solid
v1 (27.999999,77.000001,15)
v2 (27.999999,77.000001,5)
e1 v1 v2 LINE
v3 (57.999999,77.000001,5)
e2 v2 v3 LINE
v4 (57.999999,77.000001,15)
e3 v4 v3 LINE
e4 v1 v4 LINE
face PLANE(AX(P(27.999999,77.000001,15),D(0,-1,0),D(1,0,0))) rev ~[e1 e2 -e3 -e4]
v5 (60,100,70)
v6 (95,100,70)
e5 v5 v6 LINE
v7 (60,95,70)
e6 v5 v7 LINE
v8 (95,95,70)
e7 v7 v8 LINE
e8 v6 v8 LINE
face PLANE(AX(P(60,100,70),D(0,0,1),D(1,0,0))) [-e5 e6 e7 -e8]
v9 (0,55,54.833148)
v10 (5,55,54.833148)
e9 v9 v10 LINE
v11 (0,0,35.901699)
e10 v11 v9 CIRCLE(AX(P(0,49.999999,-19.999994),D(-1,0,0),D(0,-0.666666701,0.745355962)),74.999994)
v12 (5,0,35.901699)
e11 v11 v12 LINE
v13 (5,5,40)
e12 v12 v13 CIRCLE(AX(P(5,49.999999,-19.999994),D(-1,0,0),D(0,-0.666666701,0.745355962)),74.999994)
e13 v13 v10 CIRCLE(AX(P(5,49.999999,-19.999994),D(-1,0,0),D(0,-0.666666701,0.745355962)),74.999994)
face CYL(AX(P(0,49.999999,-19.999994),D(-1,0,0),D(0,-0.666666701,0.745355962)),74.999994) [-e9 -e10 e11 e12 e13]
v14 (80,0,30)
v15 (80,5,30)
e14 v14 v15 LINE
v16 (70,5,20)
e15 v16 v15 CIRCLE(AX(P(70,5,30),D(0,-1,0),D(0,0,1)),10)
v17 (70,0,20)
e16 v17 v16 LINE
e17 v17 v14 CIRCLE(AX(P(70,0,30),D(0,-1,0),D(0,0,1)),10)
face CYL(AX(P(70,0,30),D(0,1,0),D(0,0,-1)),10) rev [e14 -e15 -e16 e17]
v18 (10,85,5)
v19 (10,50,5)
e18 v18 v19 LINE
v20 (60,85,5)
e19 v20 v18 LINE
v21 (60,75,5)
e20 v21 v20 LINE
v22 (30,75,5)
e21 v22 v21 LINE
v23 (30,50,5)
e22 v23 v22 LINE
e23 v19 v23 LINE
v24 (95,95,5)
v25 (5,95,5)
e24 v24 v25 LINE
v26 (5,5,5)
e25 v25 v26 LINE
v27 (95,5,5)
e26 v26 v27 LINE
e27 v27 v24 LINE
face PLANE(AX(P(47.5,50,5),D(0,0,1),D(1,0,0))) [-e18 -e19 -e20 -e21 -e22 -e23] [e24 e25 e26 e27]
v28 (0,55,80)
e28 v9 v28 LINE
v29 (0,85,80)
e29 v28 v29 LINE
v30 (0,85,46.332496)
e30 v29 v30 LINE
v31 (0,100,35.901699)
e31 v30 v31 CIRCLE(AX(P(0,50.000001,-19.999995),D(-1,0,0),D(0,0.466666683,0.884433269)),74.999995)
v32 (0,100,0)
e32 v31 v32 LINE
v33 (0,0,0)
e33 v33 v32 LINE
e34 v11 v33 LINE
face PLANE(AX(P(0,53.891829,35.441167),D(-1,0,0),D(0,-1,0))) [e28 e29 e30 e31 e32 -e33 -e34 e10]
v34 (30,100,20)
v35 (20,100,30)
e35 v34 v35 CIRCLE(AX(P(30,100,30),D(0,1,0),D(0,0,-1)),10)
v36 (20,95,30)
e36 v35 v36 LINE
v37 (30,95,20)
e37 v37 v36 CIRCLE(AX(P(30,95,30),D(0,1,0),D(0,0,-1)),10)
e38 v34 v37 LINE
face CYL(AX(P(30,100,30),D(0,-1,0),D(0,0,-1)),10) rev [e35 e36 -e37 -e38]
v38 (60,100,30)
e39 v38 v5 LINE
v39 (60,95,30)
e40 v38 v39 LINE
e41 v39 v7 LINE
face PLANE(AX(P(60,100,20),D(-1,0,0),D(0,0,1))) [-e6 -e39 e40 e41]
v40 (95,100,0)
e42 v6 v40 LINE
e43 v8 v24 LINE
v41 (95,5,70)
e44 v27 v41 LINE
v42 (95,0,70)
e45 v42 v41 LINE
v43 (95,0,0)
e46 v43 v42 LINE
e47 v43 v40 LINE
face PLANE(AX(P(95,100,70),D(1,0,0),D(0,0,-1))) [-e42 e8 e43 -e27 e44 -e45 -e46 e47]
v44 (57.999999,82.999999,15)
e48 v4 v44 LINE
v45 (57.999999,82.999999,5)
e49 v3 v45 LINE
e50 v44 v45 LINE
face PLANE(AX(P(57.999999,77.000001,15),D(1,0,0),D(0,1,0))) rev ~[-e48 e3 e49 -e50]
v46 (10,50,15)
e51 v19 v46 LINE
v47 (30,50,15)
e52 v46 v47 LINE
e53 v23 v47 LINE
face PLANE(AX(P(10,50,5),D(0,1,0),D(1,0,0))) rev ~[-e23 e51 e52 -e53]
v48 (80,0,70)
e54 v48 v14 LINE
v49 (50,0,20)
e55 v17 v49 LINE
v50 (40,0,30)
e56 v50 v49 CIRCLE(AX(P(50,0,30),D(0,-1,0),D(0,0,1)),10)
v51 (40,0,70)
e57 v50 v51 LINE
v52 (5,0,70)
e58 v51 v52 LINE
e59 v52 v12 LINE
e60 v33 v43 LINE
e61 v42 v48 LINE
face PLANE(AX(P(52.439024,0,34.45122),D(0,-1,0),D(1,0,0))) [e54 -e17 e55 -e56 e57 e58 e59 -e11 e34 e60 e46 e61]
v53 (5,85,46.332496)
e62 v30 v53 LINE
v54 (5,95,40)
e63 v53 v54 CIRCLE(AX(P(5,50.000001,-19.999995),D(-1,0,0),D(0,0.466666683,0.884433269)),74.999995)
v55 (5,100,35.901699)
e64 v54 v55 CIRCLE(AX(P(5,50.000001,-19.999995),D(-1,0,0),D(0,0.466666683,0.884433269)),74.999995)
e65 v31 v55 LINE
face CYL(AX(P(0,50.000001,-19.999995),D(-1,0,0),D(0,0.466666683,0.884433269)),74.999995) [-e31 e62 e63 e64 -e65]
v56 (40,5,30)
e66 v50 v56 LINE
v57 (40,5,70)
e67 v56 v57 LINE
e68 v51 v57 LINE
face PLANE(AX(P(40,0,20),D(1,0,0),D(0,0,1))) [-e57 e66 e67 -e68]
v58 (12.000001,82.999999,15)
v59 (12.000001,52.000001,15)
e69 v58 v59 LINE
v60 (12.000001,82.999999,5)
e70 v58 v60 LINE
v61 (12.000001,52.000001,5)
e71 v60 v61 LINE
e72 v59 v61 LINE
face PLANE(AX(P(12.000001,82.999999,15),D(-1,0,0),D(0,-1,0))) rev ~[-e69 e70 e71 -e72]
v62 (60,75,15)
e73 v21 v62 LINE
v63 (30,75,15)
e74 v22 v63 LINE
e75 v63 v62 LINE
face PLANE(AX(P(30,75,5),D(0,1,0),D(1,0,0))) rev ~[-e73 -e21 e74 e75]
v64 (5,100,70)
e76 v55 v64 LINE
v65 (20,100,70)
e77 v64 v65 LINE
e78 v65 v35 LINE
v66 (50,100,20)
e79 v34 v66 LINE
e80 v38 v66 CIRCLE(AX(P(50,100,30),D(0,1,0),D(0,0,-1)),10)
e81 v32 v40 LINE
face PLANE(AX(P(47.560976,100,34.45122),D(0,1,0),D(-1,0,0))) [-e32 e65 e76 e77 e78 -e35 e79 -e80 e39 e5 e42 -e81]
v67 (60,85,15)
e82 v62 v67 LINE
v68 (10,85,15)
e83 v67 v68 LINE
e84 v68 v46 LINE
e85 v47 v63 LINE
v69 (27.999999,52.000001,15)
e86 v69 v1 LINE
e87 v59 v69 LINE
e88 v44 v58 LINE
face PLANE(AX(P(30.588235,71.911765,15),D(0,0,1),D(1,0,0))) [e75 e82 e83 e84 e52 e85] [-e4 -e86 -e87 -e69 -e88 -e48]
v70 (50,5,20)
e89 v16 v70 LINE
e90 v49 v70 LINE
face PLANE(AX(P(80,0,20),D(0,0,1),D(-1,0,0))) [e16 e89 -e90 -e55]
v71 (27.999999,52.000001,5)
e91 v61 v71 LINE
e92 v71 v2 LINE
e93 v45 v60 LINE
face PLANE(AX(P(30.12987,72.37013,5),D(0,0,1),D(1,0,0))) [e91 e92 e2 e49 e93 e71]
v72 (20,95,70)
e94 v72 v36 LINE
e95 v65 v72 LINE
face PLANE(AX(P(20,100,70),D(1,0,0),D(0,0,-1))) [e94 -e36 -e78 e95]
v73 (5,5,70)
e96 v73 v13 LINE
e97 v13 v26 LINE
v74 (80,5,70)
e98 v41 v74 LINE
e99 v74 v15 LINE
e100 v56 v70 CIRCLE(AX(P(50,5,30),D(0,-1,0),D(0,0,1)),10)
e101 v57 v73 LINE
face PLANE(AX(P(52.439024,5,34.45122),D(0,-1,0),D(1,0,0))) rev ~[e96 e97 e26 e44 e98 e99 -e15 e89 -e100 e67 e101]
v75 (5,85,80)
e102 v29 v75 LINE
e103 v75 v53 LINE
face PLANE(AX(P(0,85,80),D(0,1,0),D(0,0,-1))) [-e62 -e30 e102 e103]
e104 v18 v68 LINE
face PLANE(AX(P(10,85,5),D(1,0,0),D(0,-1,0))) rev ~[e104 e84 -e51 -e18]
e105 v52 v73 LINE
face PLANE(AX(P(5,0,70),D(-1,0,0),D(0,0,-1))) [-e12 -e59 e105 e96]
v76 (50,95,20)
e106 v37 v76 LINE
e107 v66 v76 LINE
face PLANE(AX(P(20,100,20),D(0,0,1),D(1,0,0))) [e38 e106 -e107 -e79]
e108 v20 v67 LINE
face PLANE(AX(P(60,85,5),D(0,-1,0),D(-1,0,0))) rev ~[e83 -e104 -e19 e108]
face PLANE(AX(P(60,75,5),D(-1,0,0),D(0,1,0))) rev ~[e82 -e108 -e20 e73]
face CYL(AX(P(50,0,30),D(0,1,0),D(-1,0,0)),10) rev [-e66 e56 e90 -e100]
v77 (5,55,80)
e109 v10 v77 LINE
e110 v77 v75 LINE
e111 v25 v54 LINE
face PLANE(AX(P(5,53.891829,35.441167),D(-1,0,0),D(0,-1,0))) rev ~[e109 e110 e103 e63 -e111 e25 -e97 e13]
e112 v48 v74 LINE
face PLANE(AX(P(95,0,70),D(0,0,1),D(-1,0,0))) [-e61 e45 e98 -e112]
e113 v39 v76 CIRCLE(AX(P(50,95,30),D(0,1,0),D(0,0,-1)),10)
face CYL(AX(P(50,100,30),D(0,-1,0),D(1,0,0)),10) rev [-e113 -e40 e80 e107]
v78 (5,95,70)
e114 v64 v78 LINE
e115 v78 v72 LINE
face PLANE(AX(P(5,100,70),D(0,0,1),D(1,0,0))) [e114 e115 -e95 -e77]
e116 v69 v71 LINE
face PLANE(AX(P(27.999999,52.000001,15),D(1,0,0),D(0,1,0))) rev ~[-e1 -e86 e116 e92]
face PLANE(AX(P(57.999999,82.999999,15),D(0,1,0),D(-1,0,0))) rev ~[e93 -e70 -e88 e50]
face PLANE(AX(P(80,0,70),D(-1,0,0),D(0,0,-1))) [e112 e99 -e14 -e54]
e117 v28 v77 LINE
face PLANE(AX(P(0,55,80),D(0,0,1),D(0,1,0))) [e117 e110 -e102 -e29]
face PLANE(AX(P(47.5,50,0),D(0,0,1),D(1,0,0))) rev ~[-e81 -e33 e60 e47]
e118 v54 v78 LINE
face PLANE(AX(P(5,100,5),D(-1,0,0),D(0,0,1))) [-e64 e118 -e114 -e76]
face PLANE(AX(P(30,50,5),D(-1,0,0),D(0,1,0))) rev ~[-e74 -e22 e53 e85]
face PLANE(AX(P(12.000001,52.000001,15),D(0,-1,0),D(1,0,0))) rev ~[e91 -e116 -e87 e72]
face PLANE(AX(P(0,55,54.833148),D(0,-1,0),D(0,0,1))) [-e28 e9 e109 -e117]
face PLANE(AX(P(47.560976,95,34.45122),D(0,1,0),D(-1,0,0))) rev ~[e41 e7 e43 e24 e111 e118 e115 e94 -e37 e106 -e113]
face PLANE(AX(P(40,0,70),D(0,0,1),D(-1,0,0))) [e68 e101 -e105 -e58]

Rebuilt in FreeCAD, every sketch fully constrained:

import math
import FreeCAD as App
import Part
import Sketcher


def edges_at(feature, points):
    """Names of the edges that pass closest to the given points."""
    edges = feature.Shape.Edges
    near = lambda p: min(range(len(edges)), key=lambda i: edges[i].distToShape(Part.Vertex(*p))[0])
    return sorted({f"Edge{near(p) + 1}" for p in points})

doc = App.newDocument("Part")
params = doc.addObject("Spreadsheet::Sheet", "Params")
for row, (alias, value) in enumerate([
    ("sketch1_width", "95 mm"),
    ("sketch1_height", "100 mm"),
    ("pad1_length", "5 mm"),
    ("sketch2_width", "30 mm"),
    ("sketch2_width2", "100 mm"),
    ("pad2_length", "5 mm"),
    ("sketch3_width", "90 mm"),
    ("sketch3_width2", "15 mm"),
    ("sketch3_width3", "40 mm"),
    ("sketch3_height", "65 mm"),
    ("sketch3_height2", "50 mm"),
    ("pad3_length", "5 mm"),
    ("sketch4_width", "90 mm"),
    ("sketch4_width2", "15 mm"),
    ("sketch4_width3", "40 mm"),
    ("sketch4_height", "65 mm"),
    ("sketch4_height2", "50 mm"),
    ("pad4_length", "5 mm"),
    ("fillet_radius", "10 mm"),
    ("sketch5_width", "20 mm"),
    ("sketch5_width2", "30 mm"),
    ("sketch5_height", "35 mm"),
    ("sketch5_height2", "25 mm"),
    ("pad5_length", "10 mm"),
    ("sketch6_width", "45.999998 mm"),
    ("sketch6_width2", "30 mm"),
    ("sketch6_height", "30.999998 mm"),
    ("sketch6_height2", "25 mm"),
    ("pocket1_length", "10 mm"),
], start=1):
    params.set(f"A{row}", alias)
    params.set(f"B{row}", "=" + value)
    params.setAlias(f"B{row}", alias)

body = doc.addObject("PartDesign::Body", "Body")

# Sketch on XY plane
sketch1 = body.newObject("Sketcher::SketchObject", "Sketch")
sketch1.AttachmentSupport = (doc.getObject("XY_Plane"), [""])
sketch1.MapMode = "FlatFace"
sketch1.addGeometry([
    Part.LineSegment(App.Vector(0, 100, 0), App.Vector(0, 0, 0)),
    Part.LineSegment(App.Vector(0, 0, 0), App.Vector(95, 0, 0)),
    Part.LineSegment(App.Vector(95, 0, 0), App.Vector(95, 100, 0)),
    Part.LineSegment(App.Vector(95, 100, 0), App.Vector(0, 100, 0)),
], False)
sketch1.addConstraint([
    Sketcher.Constraint("Coincident", 0, 2, 1, 1),
    Sketcher.Constraint("Coincident", 1, 2, 2, 1),
    Sketcher.Constraint("Coincident", 2, 2, 3, 1),
    Sketcher.Constraint("Coincident", 3, 2, 0, 1),
    Sketcher.Constraint("Vertical", 0),
    Sketcher.Constraint("Horizontal", 1),
    Sketcher.Constraint("Vertical", 2),
    Sketcher.Constraint("Horizontal", 3),
    Sketcher.Constraint("Coincident", 0, 2, -1, 1),
    Sketcher.Constraint("DistanceX", 1, 1, 1, 2, 95.0),
    Sketcher.Constraint("DistanceY", 0, 2, 0, 1, 100.0),
])
sketch1.setExpression("Constraints[9]", "Params.sketch1_width")
sketch1.setExpression("Constraints[10]", "Params.sketch1_height")
pad1 = body.newObject("PartDesign::Pad", "Pad")
pad1.Profile = sketch1
pad1.setExpression("Length", "Params.pad1_length")

# Sketch on YZ plane
sketch2 = body.newObject("Sketcher::SketchObject", "Sketch001")
sketch2.AttachmentSupport = (doc.getObject("YZ_Plane"), [""])
sketch2.MapMode = "FlatFace"
sketch2.addGeometry([
    Part.LineSegment(App.Vector(0, 5, 0), App.Vector(0, 36, 0)),  # 0
    Part.ArcOfCircle(Part.Circle(App.Vector(50, -20, 0), App.Vector(0, 0, 1), 75), math.radians(86), math.radians(132)),  # 1
    Part.LineSegment(App.Vector(55, 55, 0), App.Vector(55, 80, 0)),  # 2
    Part.LineSegment(App.Vector(55, 80, 0), App.Vector(85, 80, 0)),  # 3
    Part.LineSegment(App.Vector(85, 80, 0), App.Vector(85, 46, 0)),  # 4
    Part.ArcOfCircle(Part.Circle(App.Vector(50, -20, 0), App.Vector(0, 0, 1), 75), math.radians(48.19), math.radians(62.18)),  # 5
    Part.LineSegment(App.Vector(100, 36, 0), App.Vector(100, 5, 0)),  # 6
    Part.LineSegment(App.Vector(100, 5, 0), App.Vector(0, 5, 0)),  # 7
], False)
sketch2.addConstraint([
    Sketcher.Constraint("Coincident", 0, 2, 1, 2),
    Sketcher.Constraint("Coincident", 1, 1, 2, 1),
    Sketcher.Constraint("Coincident", 2, 2, 3, 1),
    Sketcher.Constraint("Coincident", 3, 2, 4, 1),
    Sketcher.Constraint("Coincident", 4, 2, 5, 2),
    Sketcher.Constraint("Coincident", 5, 1, 6, 1),
    Sketcher.Constraint("Coincident", 6, 2, 7, 1),
    Sketcher.Constraint("Coincident", 7, 2, 0, 1),
    Sketcher.Constraint("Vertical", 0),
    Sketcher.Constraint("Vertical", 2),
    Sketcher.Constraint("Horizontal", 3),
    Sketcher.Constraint("Vertical", 4),
    Sketcher.Constraint("Vertical", 6),
    Sketcher.Constraint("Horizontal", 7),
    Sketcher.Constraint("Coincident", 5, 3, 1, 3),
    Sketcher.Constraint("Equal", 1, 5),
    Sketcher.Constraint("PointOnObject", 0, 2, -2),
    Sketcher.Constraint("Horizontal", 0, 2, 5, 1),
    Sketcher.Constraint("DistanceX", 3, 1, 3, 2, 30.0),
    Sketcher.Constraint("DistanceX", 7, 2, 7, 1, 100.0),
    Sketcher.Constraint("DistanceX", -1, 1, 1, 1, 55.0),
    Sketcher.Constraint("DistanceY", -1, 1, 2, 2, 80.0),
    Sketcher.Constraint("DistanceY", -1, 1, 6, 2, 5.0),
    Sketcher.Constraint("DistanceY", 0, 1, 0, 2, 30.901699),
    Sketcher.Constraint("Radius", 1, 74.999994),
])
sketch2.setExpression("Constraints[18]", "Params.sketch2_width")
sketch2.setExpression("Constraints[19]", "Params.sketch2_width2")
pad2 = body.newObject("PartDesign::Pad", "Pad001")
pad2.Profile = sketch2
pad2.setExpression("Length", "Params.pad2_length")

# Sketch on XZ plane
sketch3 = body.newObject("Sketcher::SketchObject", "Sketch002")
sketch3.AttachmentSupport = (doc.getObject("XZ_Plane"), [""])
sketch3.MapMode = "FlatFace"
sketch3.addGeometry([
    Part.LineSegment(App.Vector(5, 70, 0), App.Vector(5, 5, 0)),  # 0
    Part.LineSegment(App.Vector(5, 5, 0), App.Vector(95, 5, 0)),  # 1
    Part.LineSegment(App.Vector(95, 5, 0), App.Vector(95, 70, 0)),  # 2
    Part.LineSegment(App.Vector(95, 70, 0), App.Vector(80, 70, 0)),  # 3
    Part.LineSegment(App.Vector(80, 70, 0), App.Vector(80, 20, 0)),  # 4
    Part.LineSegment(App.Vector(80, 20, 0), App.Vector(40, 20, 0)),  # 5
    Part.LineSegment(App.Vector(40, 20, 0), App.Vector(40, 70, 0)),  # 6
    Part.LineSegment(App.Vector(40, 70, 0), App.Vector(5, 70, 0)),  # 7
], False)
sketch3.addConstraint([
    Sketcher.Constraint("Coincident", 0, 2, 1, 1),
    Sketcher.Constraint("Coincident", 1, 2, 2, 1),
    Sketcher.Constraint("Coincident", 2, 2, 3, 1),
    Sketcher.Constraint("Coincident", 3, 2, 4, 1),
    Sketcher.Constraint("Coincident", 4, 2, 5, 1),
    Sketcher.Constraint("Coincident", 5, 2, 6, 1),
    Sketcher.Constraint("Coincident", 6, 2, 7, 1),
    Sketcher.Constraint("Coincident", 7, 2, 0, 1),
    Sketcher.Constraint("Vertical", 0),
    Sketcher.Constraint("Horizontal", 1),
    Sketcher.Constraint("Vertical", 2),
    Sketcher.Constraint("Horizontal", 3),
    Sketcher.Constraint("Vertical", 4),
    Sketcher.Constraint("Horizontal", 5),
    Sketcher.Constraint("Vertical", 6),
    Sketcher.Constraint("Horizontal", 7),
    Sketcher.Constraint("Horizontal", 3, 2, 6, 2),
    Sketcher.Constraint("DistanceX", 1, 1, 1, 2, 90.0),
    Sketcher.Constraint("DistanceX", 3, 2, 3, 1, 15.0),
    Sketcher.Constraint("DistanceX", 5, 2, 5, 1, 40.0),
    Sketcher.Constraint("DistanceY", 0, 2, 0, 1, 65.0),
    Sketcher.Constraint("DistanceY", 4, 2, 4, 1, 50.0),
    Sketcher.Constraint("DistanceX", -1, 1, 0, 2, 5.0),
    Sketcher.Constraint("DistanceY", -1, 1, 0, 2, 5.0),
])
sketch3.setExpression("Constraints[17]", "Params.sketch3_width")
sketch3.setExpression("Constraints[18]", "Params.sketch3_width2")
sketch3.setExpression("Constraints[19]", "Params.sketch3_width3")
sketch3.setExpression("Constraints[20]", "Params.sketch3_height")
sketch3.setExpression("Constraints[21]", "Params.sketch3_height2")
pad3 = body.newObject("PartDesign::Pad", "Pad002")
pad3.Profile = sketch3
pad3.setExpression("Length", "Params.pad3_length")
pad3.Reversed = True

# Sketch on XZ plane
sketch4 = body.newObject("Sketcher::SketchObject", "Sketch003")
sketch4.AttachmentSupport = (doc.getObject("XZ_Plane"), [""])
sketch4.MapMode = "FlatFace"
sketch4.AttachmentOffset = App.Placement(App.Vector(0, 0, -100), App.Rotation())
sketch4.addGeometry([
    Part.LineSegment(App.Vector(95, 5, 0), App.Vector(5, 5, 0)),  # 0
    Part.LineSegment(App.Vector(5, 5, 0), App.Vector(5, 70, 0)),  # 1
    Part.LineSegment(App.Vector(5, 70, 0), App.Vector(20, 70, 0)),  # 2
    Part.LineSegment(App.Vector(20, 70, 0), App.Vector(20, 20, 0)),  # 3
    Part.LineSegment(App.Vector(20, 20, 0), App.Vector(60, 20, 0)),  # 4
    Part.LineSegment(App.Vector(60, 20, 0), App.Vector(60, 70, 0)),  # 5
    Part.LineSegment(App.Vector(60, 70, 0), App.Vector(95, 70, 0)),  # 6
    Part.LineSegment(App.Vector(95, 70, 0), App.Vector(95, 5, 0)),  # 7
], False)
sketch4.addConstraint([
    Sketcher.Constraint("Coincident", 0, 2, 1, 1),
    Sketcher.Constraint("Coincident", 1, 2, 2, 1),
    Sketcher.Constraint("Coincident", 2, 2, 3, 1),
    Sketcher.Constraint("Coincident", 3, 2, 4, 1),
    Sketcher.Constraint("Coincident", 4, 2, 5, 1),
    Sketcher.Constraint("Coincident", 5, 2, 6, 1),
    Sketcher.Constraint("Coincident", 6, 2, 7, 1),
    Sketcher.Constraint("Coincident", 7, 2, 0, 1),
    Sketcher.Constraint("Horizontal", 0),
    Sketcher.Constraint("Vertical", 1),
    Sketcher.Constraint("Horizontal", 2),
    Sketcher.Constraint("Vertical", 3),
    Sketcher.Constraint("Horizontal", 4),
    Sketcher.Constraint("Vertical", 5),
    Sketcher.Constraint("Horizontal", 6),
    Sketcher.Constraint("Vertical", 7),
    Sketcher.Constraint("Horizontal", 2, 2, 5, 2),
    Sketcher.Constraint("DistanceX", 0, 2, 0, 1, 90.0),
    Sketcher.Constraint("DistanceX", 2, 1, 2, 2, 15.0),
    Sketcher.Constraint("DistanceX", 4, 1, 4, 2, 40.0),
    Sketcher.Constraint("DistanceY", 1, 1, 1, 2, 65.0),
    Sketcher.Constraint("DistanceY", 3, 2, 3, 1, 50.0),
    Sketcher.Constraint("DistanceX", -1, 1, 0, 2, 5.0),
    Sketcher.Constraint("DistanceY", -1, 1, 0, 2, 5.0),
])
sketch4.setExpression("Constraints[17]", "Params.sketch4_width")
sketch4.setExpression("Constraints[18]", "Params.sketch4_width2")
sketch4.setExpression("Constraints[19]", "Params.sketch4_width3")
sketch4.setExpression("Constraints[20]", "Params.sketch4_height")
sketch4.setExpression("Constraints[21]", "Params.sketch4_height2")
pad4 = body.newObject("PartDesign::Pad", "Pad003")
pad4.Profile = sketch4
pad4.setExpression("Length", "Params.pad4_length")
doc.recompute()

fillet = body.newObject("PartDesign::Fillet", "Fillet")
fillet.Base = (pad4, edges_at(pad4, [
    (20, 97.5, 20),
    (40, 2.5, 20),
    (60, 97.5, 20),
    (80, 2.5, 20),
]))
fillet.setExpression("Radius", "Params.fillet_radius")

# Sketch on XY plane
sketch5 = body.newObject("Sketcher::SketchObject", "Sketch004")
sketch5.AttachmentSupport = (doc.getObject("XY_Plane"), [""])
sketch5.MapMode = "FlatFace"
sketch5.AttachmentOffset = App.Placement(App.Vector(0, 0, 5), App.Rotation())
sketch5.addGeometry([
    Part.LineSegment(App.Vector(10, 85, 0), App.Vector(10, 50, 0)),  # 0
    Part.LineSegment(App.Vector(10, 50, 0), App.Vector(30, 50, 0)),  # 1
    Part.LineSegment(App.Vector(30, 50, 0), App.Vector(30, 75, 0)),  # 2
    Part.LineSegment(App.Vector(30, 75, 0), App.Vector(60, 75, 0)),  # 3
    Part.LineSegment(App.Vector(60, 75, 0), App.Vector(60, 85, 0)),  # 4
    Part.LineSegment(App.Vector(60, 85, 0), App.Vector(10, 85, 0)),  # 5
], False)
sketch5.addConstraint([
    Sketcher.Constraint("Coincident", 0, 2, 1, 1),
    Sketcher.Constraint("Coincident", 1, 2, 2, 1),
    Sketcher.Constraint("Coincident", 2, 2, 3, 1),
    Sketcher.Constraint("Coincident", 3, 2, 4, 1),
    Sketcher.Constraint("Coincident", 4, 2, 5, 1),
    Sketcher.Constraint("Coincident", 5, 2, 0, 1),
    Sketcher.Constraint("Vertical", 0),
    Sketcher.Constraint("Horizontal", 1),
    Sketcher.Constraint("Vertical", 2),
    Sketcher.Constraint("Horizontal", 3),
    Sketcher.Constraint("Vertical", 4),
    Sketcher.Constraint("Horizontal", 5),
    Sketcher.Constraint("DistanceX", 1, 1, 1, 2, 20.0),
    Sketcher.Constraint("DistanceX", 3, 1, 3, 2, 30.0),
    Sketcher.Constraint("DistanceY", 0, 2, 0, 1, 35.0),
    Sketcher.Constraint("DistanceY", 2, 1, 2, 2, 25.0),
    Sketcher.Constraint("DistanceX", -1, 1, 0, 2, 10.0),
    Sketcher.Constraint("DistanceY", -1, 1, 0, 2, 50.0),
])
sketch5.setExpression("Constraints[12]", "Params.sketch5_width")
sketch5.setExpression("Constraints[13]", "Params.sketch5_width2")
sketch5.setExpression("Constraints[14]", "Params.sketch5_height")
sketch5.setExpression("Constraints[15]", "Params.sketch5_height2")
pad5 = body.newObject("PartDesign::Pad", "Pad004")
pad5.Profile = sketch5
pad5.setExpression("Length", "Params.pad5_length")

# Sketch on XY plane
sketch6 = body.newObject("Sketcher::SketchObject", "Sketch005")
sketch6.AttachmentSupport = (doc.getObject("XY_Plane"), [""])
sketch6.MapMode = "FlatFace"
sketch6.AttachmentOffset = App.Placement(App.Vector(0, 0, 15), App.Rotation())
sketch6.addGeometry([
    Part.LineSegment(App.Vector(58, 83, 0), App.Vector(12, 83, 0)),  # 0
    Part.LineSegment(App.Vector(12, 83, 0), App.Vector(12, 52, 0)),  # 1
    Part.LineSegment(App.Vector(12, 52, 0), App.Vector(28, 52, 0)),  # 2
    Part.LineSegment(App.Vector(28, 52, 0), App.Vector(28, 77, 0)),  # 3
    Part.LineSegment(App.Vector(28, 77, 0), App.Vector(58, 77, 0)),  # 4
    Part.LineSegment(App.Vector(58, 77, 0), App.Vector(58, 83, 0)),  # 5
], False)
sketch6.addConstraint([
    Sketcher.Constraint("Coincident", 0, 2, 1, 1),
    Sketcher.Constraint("Coincident", 1, 2, 2, 1),
    Sketcher.Constraint("Coincident", 2, 2, 3, 1),
    Sketcher.Constraint("Coincident", 3, 2, 4, 1),
    Sketcher.Constraint("Coincident", 4, 2, 5, 1),
    Sketcher.Constraint("Coincident", 5, 2, 0, 1),
    Sketcher.Constraint("Horizontal", 0),
    Sketcher.Constraint("Vertical", 1),
    Sketcher.Constraint("Horizontal", 2),
    Sketcher.Constraint("Vertical", 3),
    Sketcher.Constraint("Horizontal", 4),
    Sketcher.Constraint("Vertical", 5),
    Sketcher.Constraint("DistanceX", 0, 2, 0, 1, 45.999998),
    Sketcher.Constraint("DistanceX", 4, 1, 4, 2, 30.0),
    Sketcher.Constraint("DistanceY", 1, 2, 1, 1, 30.999998),
    Sketcher.Constraint("DistanceY", 3, 1, 3, 2, 25.0),
    Sketcher.Constraint("DistanceX", -1, 1, 0, 2, 12.000001),
    Sketcher.Constraint("DistanceY", -1, 1, 0, 2, 82.999999),
])
sketch6.setExpression("Constraints[12]", "Params.sketch6_width")
sketch6.setExpression("Constraints[13]", "Params.sketch6_width2")
sketch6.setExpression("Constraints[14]", "Params.sketch6_height")
sketch6.setExpression("Constraints[15]", "Params.sketch6_height2")
pocket1 = body.newObject("PartDesign::Pocket", "Pocket")
pocket1.Profile = sketch6
pocket1.setExpression("Length", "Params.pocket1_length")

doc.recompute()
